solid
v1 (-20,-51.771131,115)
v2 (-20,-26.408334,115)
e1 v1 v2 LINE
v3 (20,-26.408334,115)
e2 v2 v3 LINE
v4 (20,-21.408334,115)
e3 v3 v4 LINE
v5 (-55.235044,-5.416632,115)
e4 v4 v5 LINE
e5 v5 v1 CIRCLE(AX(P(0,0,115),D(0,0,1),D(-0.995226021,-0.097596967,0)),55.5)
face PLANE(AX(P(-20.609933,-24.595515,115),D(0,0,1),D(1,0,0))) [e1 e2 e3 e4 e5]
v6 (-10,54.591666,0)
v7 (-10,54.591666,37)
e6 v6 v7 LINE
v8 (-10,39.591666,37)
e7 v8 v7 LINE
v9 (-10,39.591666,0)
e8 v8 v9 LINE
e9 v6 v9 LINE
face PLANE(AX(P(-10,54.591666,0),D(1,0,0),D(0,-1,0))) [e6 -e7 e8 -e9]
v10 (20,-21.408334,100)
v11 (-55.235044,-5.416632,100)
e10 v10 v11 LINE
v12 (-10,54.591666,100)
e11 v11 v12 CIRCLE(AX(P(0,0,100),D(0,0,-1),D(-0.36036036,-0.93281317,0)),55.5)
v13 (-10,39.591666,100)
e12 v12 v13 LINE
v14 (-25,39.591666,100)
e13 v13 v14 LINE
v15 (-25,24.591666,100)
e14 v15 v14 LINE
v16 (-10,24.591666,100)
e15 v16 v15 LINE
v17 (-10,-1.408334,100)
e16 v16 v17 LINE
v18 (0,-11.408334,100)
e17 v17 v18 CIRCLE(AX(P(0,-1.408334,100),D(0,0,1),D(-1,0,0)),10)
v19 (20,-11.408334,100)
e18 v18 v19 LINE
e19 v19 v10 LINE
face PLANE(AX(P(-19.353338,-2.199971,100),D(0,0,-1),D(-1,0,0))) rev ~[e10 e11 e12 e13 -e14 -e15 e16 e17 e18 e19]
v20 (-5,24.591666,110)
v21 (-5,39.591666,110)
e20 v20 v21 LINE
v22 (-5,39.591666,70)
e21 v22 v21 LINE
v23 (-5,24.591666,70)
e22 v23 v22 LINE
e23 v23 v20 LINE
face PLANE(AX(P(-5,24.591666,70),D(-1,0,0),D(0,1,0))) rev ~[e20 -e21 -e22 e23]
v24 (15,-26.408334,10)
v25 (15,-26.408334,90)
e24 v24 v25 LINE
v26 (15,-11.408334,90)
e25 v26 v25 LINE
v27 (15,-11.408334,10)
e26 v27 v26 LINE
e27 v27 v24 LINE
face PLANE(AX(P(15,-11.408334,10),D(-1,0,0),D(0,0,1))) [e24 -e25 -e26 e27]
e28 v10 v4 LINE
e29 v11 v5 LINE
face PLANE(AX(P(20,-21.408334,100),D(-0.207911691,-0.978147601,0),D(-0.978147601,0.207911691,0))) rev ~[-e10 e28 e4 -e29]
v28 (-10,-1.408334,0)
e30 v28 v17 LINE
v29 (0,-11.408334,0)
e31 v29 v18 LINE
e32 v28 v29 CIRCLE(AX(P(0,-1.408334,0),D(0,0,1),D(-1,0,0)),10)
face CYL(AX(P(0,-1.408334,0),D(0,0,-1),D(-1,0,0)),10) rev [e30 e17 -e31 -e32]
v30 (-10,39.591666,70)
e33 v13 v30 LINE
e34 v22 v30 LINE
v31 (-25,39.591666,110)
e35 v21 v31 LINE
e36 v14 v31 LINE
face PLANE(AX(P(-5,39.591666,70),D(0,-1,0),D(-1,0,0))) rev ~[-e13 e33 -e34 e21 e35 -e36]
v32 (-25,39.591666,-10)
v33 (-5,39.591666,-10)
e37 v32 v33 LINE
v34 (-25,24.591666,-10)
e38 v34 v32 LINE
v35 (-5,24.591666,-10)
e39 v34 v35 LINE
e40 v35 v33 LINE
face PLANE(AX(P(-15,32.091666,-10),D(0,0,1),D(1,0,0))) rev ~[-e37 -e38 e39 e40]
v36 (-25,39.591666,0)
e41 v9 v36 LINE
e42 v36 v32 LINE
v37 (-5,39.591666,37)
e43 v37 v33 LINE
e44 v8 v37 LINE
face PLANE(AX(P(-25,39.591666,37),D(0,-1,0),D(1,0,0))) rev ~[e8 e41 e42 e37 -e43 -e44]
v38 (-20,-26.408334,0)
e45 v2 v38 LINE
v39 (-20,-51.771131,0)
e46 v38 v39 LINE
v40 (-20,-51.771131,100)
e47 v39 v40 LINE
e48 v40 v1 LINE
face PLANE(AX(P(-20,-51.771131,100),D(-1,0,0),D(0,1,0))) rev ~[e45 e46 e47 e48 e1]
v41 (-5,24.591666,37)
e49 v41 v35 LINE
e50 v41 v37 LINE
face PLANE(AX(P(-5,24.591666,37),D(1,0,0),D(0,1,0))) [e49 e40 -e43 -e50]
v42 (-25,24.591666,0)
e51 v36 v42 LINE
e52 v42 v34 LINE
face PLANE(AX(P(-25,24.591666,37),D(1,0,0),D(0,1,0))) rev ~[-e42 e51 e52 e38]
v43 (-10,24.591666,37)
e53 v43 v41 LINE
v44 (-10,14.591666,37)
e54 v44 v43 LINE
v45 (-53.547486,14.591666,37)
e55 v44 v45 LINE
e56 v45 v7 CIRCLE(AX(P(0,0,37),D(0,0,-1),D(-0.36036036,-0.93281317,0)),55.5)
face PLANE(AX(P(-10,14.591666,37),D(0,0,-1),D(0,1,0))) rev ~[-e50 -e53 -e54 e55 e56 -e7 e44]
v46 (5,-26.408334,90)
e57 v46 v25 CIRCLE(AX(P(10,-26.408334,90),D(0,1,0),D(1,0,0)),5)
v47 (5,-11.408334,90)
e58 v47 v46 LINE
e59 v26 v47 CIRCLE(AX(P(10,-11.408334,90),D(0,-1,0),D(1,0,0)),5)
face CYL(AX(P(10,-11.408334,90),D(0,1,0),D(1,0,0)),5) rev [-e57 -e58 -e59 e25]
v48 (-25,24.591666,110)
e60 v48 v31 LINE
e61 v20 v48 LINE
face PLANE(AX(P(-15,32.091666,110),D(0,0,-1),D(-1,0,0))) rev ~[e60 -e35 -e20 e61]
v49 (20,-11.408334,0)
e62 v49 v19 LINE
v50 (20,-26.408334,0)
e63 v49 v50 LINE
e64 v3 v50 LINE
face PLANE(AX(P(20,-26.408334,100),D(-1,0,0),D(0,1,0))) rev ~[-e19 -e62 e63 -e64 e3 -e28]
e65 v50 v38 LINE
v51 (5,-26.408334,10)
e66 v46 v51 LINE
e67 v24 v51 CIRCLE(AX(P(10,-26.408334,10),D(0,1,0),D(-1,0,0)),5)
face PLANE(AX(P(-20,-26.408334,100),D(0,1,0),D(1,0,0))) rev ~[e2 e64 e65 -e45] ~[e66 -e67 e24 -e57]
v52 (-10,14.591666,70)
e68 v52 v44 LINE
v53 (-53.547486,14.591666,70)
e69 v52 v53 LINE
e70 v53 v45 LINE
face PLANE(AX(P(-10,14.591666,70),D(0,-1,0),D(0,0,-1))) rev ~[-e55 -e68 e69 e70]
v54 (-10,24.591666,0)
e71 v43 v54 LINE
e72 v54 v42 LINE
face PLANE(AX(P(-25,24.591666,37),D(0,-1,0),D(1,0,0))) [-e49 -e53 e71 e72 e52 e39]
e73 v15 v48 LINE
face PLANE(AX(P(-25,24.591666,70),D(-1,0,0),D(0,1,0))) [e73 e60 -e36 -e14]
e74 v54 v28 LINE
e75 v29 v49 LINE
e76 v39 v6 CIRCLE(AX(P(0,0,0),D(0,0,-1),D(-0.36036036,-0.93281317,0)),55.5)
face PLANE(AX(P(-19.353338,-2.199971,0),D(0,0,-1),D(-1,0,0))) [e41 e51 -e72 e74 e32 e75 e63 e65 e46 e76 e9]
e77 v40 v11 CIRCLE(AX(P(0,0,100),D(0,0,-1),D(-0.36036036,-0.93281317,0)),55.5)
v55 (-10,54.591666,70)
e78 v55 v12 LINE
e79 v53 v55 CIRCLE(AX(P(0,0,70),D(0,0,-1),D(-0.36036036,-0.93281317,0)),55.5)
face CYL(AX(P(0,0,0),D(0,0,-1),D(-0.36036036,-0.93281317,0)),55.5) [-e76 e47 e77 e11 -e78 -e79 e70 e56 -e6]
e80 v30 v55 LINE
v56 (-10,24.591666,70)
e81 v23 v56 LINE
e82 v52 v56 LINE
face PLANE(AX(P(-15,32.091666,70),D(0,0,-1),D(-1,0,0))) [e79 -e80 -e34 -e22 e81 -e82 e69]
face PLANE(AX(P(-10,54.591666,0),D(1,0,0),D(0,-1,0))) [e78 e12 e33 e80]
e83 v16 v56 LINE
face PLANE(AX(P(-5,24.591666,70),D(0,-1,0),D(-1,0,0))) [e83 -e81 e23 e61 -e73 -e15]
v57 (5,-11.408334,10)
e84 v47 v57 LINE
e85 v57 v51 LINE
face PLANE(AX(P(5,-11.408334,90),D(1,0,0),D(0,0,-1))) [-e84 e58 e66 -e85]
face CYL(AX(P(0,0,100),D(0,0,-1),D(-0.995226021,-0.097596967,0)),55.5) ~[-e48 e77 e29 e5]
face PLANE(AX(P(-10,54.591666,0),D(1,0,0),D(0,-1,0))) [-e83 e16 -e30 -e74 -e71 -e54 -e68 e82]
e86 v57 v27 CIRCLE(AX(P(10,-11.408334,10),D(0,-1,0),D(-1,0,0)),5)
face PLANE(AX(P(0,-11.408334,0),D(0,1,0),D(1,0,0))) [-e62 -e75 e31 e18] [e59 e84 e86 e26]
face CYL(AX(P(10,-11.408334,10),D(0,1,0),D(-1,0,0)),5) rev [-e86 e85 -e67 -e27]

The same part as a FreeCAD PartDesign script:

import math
import FreeCAD as App
import Part
import Sketcher
Q = App.Units.Quantity

doc = App.newDocument("Part")
params = doc.addObject("Spreadsheet::Sheet", "Params")
for row, (alias, value) in enumerate([
    ("sketch1_radius", "10 mm"),
    ("sketch1_radius2", "55.5 mm"),
    ("sketch1_width", "40 mm"),
    ("sketch1_width2", "20 mm"),
    ("sketch1_height", "56 mm"),
    ("pad1_length", "100 mm"),
    ("sketch2_width", "40 mm"),
    ("sketch2_height", "33 mm"),
    ("sketch3_width", "20 mm"),
    ("sketch3_height", "15 mm"),
    ("pad2_length", "47 mm"),
    ("sketch4_width", "20 mm"),
    ("sketch4_height", "15 mm"),
    ("pad3_length", "40 mm"),
    ("sketch5_radius", "5 mm"),
    ("sketch5_height", "80 mm"),
    ("sketch6_radius", "55.5 mm"),
    ("sketch6_width", "40 mm"),
    ("sketch6_height", "5 mm"),
    ("pad4_length", "15 mm"),
], start=1):
    params.set(f"A{row}", alias)
    params.set(f"B{row}", "=" + value)
    params.setAlias(f"B{row}", alias)

body = doc.addObject("PartDesign::Body", "Body")

sketch1 = body.newObject("Sketcher::SketchObject", "Sketch")
sketch1.AttachmentSupport = (doc.getObject("XY_Plane"), [""])
sketch1.MapMode = "FlatFace"
sketch1.addGeometry([
    Part.LineSegment(App.Vector(-10, -1.408334, 0), App.Vector(-10, 54.591666, 0)),
    Part.ArcOfCircle(Part.Circle(App.Vector(0, 0, 0), App.Vector(0, 0, 1), 55.5), math.radians(100.380255), math.radians(248.877671)),
    Part.LineSegment(App.Vector(-20, -51.771131, 0), App.Vector(-20, -26.408334, 0)),
    Part.LineSegment(App.Vector(-20, -26.408334, 0), App.Vector(20, -26.408334, 0)),
    Part.LineSegment(App.Vector(20, -26.408334, 0), App.Vector(20, -11.408334, 0)),
    Part.LineSegment(App.Vector(20, -11.408334, 0), App.Vector(0, -11.408334, 0)),
    Part.ArcOfCircle(Part.Circle(App.Vector(0, -1.408334, 0), App.Vector(0, 0, 1), 10), math.radians(180), math.radians(270)),
], False)
sketch1.addConstraint([
    Sketcher.Constraint("Coincident", 0, 2, 1, 1),
    Sketcher.Constraint("Coincident", 1, 2, 2, 1),
    Sketcher.Constraint("Coincident", 2, 2, 3, 1),
    Sketcher.Constraint("Coincident", 3, 2, 4, 1),
    Sketcher.Constraint("Coincident", 4, 2, 5, 1),
    Sketcher.Constraint("Tangent", 5, 2, 6, 2),
    Sketcher.Constraint("Tangent", 6, 1, 0, 1),
    Sketcher.Constraint("Vertical", 0),
    Sketcher.Constraint("Vertical", 2),
    Sketcher.Constraint("Horizontal", 3),
    Sketcher.Constraint("Vertical", 4),
    Sketcher.Constraint("Horizontal", 5),
    Sketcher.Constraint("Coincident", 1, 3, -1, 1),
    Sketcher.Constraint("PointOnObject", 6, 3, -2),
    Sketcher.Constraint("Radius", 6, Q("10 mm")),
    Sketcher.Constraint("Radius", 1, Q("55.5 mm")),
    Sketcher.Constraint("DistanceX", 3, 1, 3, 2, Q("40 mm")),
    Sketcher.Constraint("DistanceX", 5, 2, 5, 1, Q("20 mm")),
    Sketcher.Constraint("DistanceY", 0, 1, 0, 2, Q("56 mm")),
    Sketcher.Constraint("DistanceY", 4, 1, 4, 2, Q("15 mm")),
])
sketch1.setExpression("Constraints[14]", "Params.sketch1_radius")
sketch1.setExpression("Constraints[15]", "Params.sketch1_radius2")
sketch1.setExpression("Constraints[16]", "Params.sketch1_width")
sketch1.setExpression("Constraints[17]", "Params.sketch1_width2")
sketch1.setExpression("Constraints[18]", "Params.sketch1_height")
pad1 = body.newObject("PartDesign::Pad", "Pad")
pad1.Profile = sketch1
pad1.setExpression("Length", "Params.pad1_length")

sketch2 = body.newObject("Sketcher::SketchObject", "Sketch001")
sketch2.AttachmentSupport = (doc.getObject("YZ_Plane"), [""])
sketch2.MapMode = "FlatFace"
sketch2.AttachmentOffset = App.Placement(App.Vector(0, 0, -10), App.Rotation())
sketch2.addGeometry([
    Part.LineSegment(App.Vector(54.591666, 70, 0), App.Vector(14.591666, 70, 0)),
    Part.LineSegment(App.Vector(14.591666, 70, 0), App.Vector(14.591666, 37, 0)),
    Part.LineSegment(App.Vector(14.591666, 37, 0), App.Vector(54.591666, 37, 0)),
    Part.LineSegment(App.Vector(54.591666, 37, 0), App.Vector(54.591666, 70, 0)),
], False)
sketch2.addConstraint([
    Sketcher.Constraint("Coincident", 0, 2, 1, 1),
    Sketcher.Constraint("Coincident", 1, 2, 2, 1),
    Sketcher.Constraint("Coincident", 2, 2, 3, 1),
    Sketcher.Constraint("Coincident", 3, 2, 0, 1),
    Sketcher.Constraint("Horizontal", 0),
    Sketcher.Constraint("Vertical", 1),
    Sketcher.Constraint("Horizontal", 2),
    Sketcher.Constraint("Vertical", 3),
    Sketcher.Constraint("DistanceX", 0, 2, 0, 1, Q("40 mm")),
    Sketcher.Constraint("DistanceY", 1, 2, 1, 1, Q("33 mm")),
    Sketcher.Constraint("DistanceY", -1, 1, 0, 2, Q("70 mm")),
    Sketcher.Constraint("DistanceX", -1, 1, 0, 2, Q("14.591666 mm")),
])
sketch2.setExpression("Constraints[8]", "Params.sketch2_width")
sketch2.setExpression("Constraints[9]", "Params.sketch2_height")
pocket1 = body.newObject("PartDesign::Pocket", "Pocket")
pocket1.Profile = sketch2
pocket1.Type = "ThroughAll"

sketch3 = body.newObject("Sketcher::SketchObject", "Sketch002")
sketch3.AttachmentSupport = (doc.getObject("XY_Plane"), [""])
sketch3.MapMode = "FlatFace"
sketch3.AttachmentOffset = App.Placement(App.Vector(0, 0, 37), App.Rotation())
sketch3.addGeometry([
    Part.LineSegment(App.Vector(-25, 39.591666, 0), App.Vector(-25, 24.591666, 0)),
    Part.LineSegment(App.Vector(-25, 24.591666, 0), App.Vector(-5, 24.591666, 0)),
    Part.LineSegment(App.Vector(-5, 24.591666, 0), App.Vector(-5, 39.591666, 0)),
    Part.LineSegment(App.Vector(-5, 39.591666, 0), App.Vector(-25, 39.591666, 0)),
], False)
sketch3.addConstraint([
    Sketcher.Constraint("Coincident", 0, 2, 1, 1),
    Sketcher.Constraint("Coincident", 1, 2, 2, 1),
    Sketcher.Constraint("Coincident", 2, 2, 3, 1),
    Sketcher.Constraint("Coincident", 3, 2, 0, 1),
    Sketcher.Constraint("Vertical", 0),
    Sketcher.Constraint("Horizontal", 1),
    Sketcher.Constraint("Vertical", 2),
    Sketcher.Constraint("Horizontal", 3),
    Sketcher.Constraint("DistanceX", 1, 1, 1, 2, Q("20 mm")),
    Sketcher.Constraint("DistanceY", 0, 2, 0, 1, Q("15 mm")),
    Sketcher.Constraint("DistanceX", 0, 2, -1, 1, Q("25 mm")),
    Sketcher.Constraint("DistanceY", -1, 1, 0, 2, Q("24.591666 mm")),
])
sketch3.setExpression("Constraints[8]", "Params.sketch3_width")
sketch3.setExpression("Constraints[9]", "Params.sketch3_height")
pad2 = body.newObject("PartDesign::Pad", "Pad001")
pad2.Profile = sketch3
pad2.setExpression("Length", "Params.pad2_length")
pad2.Reversed = True

sketch4 = body.newObject("Sketcher::SketchObject", "Sketch003")
sketch4.AttachmentSupport = (doc.getObject("XY_Plane"), [""])
sketch4.MapMode = "FlatFace"
sketch4.AttachmentOffset = App.Placement(App.Vector(0, 0, 70), App.Rotation())
sketch4.addGeometry([
    Part.LineSegment(App.Vector(-5, 39.591666, 0), App.Vector(-5, 24.591666, 0)),
    Part.LineSegment(App.Vector(-5, 24.591666, 0), App.Vector(-25, 24.591666, 0)),
    Part.LineSegment(App.Vector(-25, 24.591666, 0), App.Vector(-25, 39.591666, 0)),
    Part.LineSegment(App.Vector(-25, 39.591666, 0), App.Vector(-5, 39.591666, 0)),
], False)
sketch4.addConstraint([
    Sketcher.Constraint("Coincident", 0, 2, 1, 1),
    Sketcher.Constraint("Coincident", 1, 2, 2, 1),
    Sketcher.Constraint("Coincident", 2, 2, 3, 1),
    Sketcher.Constraint("Coincident", 3, 2, 0, 1),
    Sketcher.Constraint("Vertical", 0),
    Sketcher.Constraint("Horizontal", 1),
    Sketcher.Constraint("Vertical", 2),
    Sketcher.Constraint("Horizontal", 3),
    Sketcher.Constraint("DistanceX", 1, 2, 1, 1, Q("20 mm")),
    Sketcher.Constraint("DistanceY", 0, 2, 0, 1, Q("15 mm")),
    Sketcher.Constraint("DistanceX", 0, 2, -1, 1, Q("5 mm")),
    Sketcher.Constraint("DistanceY", -1, 1, 0, 2, Q("24.591666 mm")),
])
sketch4.setExpression("Constraints[8]", "Params.sketch4_width")
sketch4.setExpression("Constraints[9]", "Params.sketch4_height")
pad3 = body.newObject("PartDesign::Pad", "Pad002")
pad3.Profile = sketch4
pad3.setExpression("Length", "Params.pad3_length")

sketch5 = body.newObject("Sketcher::SketchObject", "Sketch004")
sketch5.AttachmentSupport = (doc.getObject("XZ_Plane"), [""])
sketch5.MapMode = "FlatFace"
sketch5.AttachmentOffset = App.Placement(App.Vector(0, 0, 11.408334), App.Rotation())
sketch5.addGeometry([
    Part.LineSegment(App.Vector(15, 90, 0), App.Vector(15, 10, 0)),
    Part.ArcOfCircle(Part.Circle(App.Vector(10, 10, 0), App.Vector(0, 0, 1), 5), math.radians(180), math.radians(360)),
    Part.LineSegment(App.Vector(5, 10, 0), App.Vector(5, 90, 0)),
    Part.ArcOfCircle(Part.Circle(App.Vector(10, 90, 0), App.Vector(0, 0, 1), 5), math.radians(0), math.radians(180)),
], False)
sketch5.addConstraint([
    Sketcher.Constraint("Tangent", 0, 2, 1, 2),
    Sketcher.Constraint("Tangent", 1, 1, 2, 1),
    Sketcher.Constraint("Tangent", 2, 2, 3, 2),
    Sketcher.Constraint("Tangent", 3, 1, 0, 1),
    Sketcher.Constraint("Vertical", 0),
    Sketcher.Constraint("Vertical", 2),
    Sketcher.Constraint("Radius", 1, Q("5 mm")),
    Sketcher.Constraint("DistanceY", 0, 2, 0, 1, Q("80 mm")),
    Sketcher.Constraint("DistanceX", -1, 1, 1, 3, Q("10 mm")),
    Sketcher.Constraint("DistanceY", -1, 1, 1, 3, Q("10 mm")),
])
sketch5.setExpression("Constraints[6]", "Params.sketch5_radius")
sketch5.setExpression("Constraints[7]", "Params.sketch5_height")
pocket2 = body.newObject("PartDesign::Pocket", "Pocket001")
pocket2.Profile = sketch5
pocket2.Type = "UpToFirst"
pocket2.Reversed = True

sketch6 = body.newObject("Sketcher::SketchObject", "Sketch005")
sketch6.AttachmentSupport = (doc.getObject("XY_Plane"), [""])
sketch6.MapMode = "FlatFace"
sketch6.AttachmentOffset = App.Placement(App.Vector(0, 0, 100), App.Rotation())
sketch6.addGeometry([
    Part.LineSegment(App.Vector(20, -21.408334, 0), App.Vector(-55.235044, -5.416632, 0)),
    Part.ArcOfCircle(Part.Circle(App.Vector(0, 0, 0), App.Vector(0, 0, 1), 55.5), math.radians(-174.39919), math.radians(-111.122329)),
    Part.LineSegment(App.Vector(-20, -51.771131, 0), App.Vector(-20, -26.408334, 0)),
    Part.LineSegment(App.Vector(-20, -26.408334, 0), App.Vector(20, -26.408334, 0)),
    Part.LineSegment(App.Vector(20, -26.408334, 0), App.Vector(20, -21.408334, 0)),
], False)
sketch6.addConstraint([
    Sketcher.Constraint("Coincident", 0, 2, 1, 1),
    Sketcher.Constraint("Coincident", 1, 2, 2, 1),
    Sketcher.Constraint("Coincident", 2, 2, 3, 1),
    Sketcher.Constraint("Coincident", 3, 2, 4, 1),
    Sketcher.Constraint("Coincident", 4, 2, 0, 1),
    Sketcher.Constraint("Vertical", 2),
    Sketcher.Constraint("Horizontal", 3),
    Sketcher.Constraint("Vertical", 4),
    Sketcher.Constraint("Coincident", 1, 3, -1, 1),
    Sketcher.Constraint("Radius", 1, Q("55.5 mm")),
    Sketcher.Constraint("DistanceX", 3, 1, 3, 2, Q("40 mm")),
    Sketcher.Constraint("DistanceY", 4, 1, 4, 2, Q("5 mm")),
    Sketcher.Constraint("Angle", 0, Q("168 deg")),
    Sketcher.Constraint("DistanceX", 1, 2, -1, 1, Q("20 mm")),
    Sketcher.Constraint("DistanceY", 1, 2, 0, 2, Q("46.354499 mm")),
])
sketch6.setExpression("Constraints[9]", "Params.sketch6_radius")
sketch6.setExpression("Constraints[10]", "Params.sketch6_width")
sketch6.setExpression("Constraints[11]", "Params.sketch6_height")
pad4 = body.newObject("PartDesign::Pad", "Pad003")
pad4.Profile = sketch6
pad4.setExpression("Length", "Params.pad4_length")

doc.recompute()
